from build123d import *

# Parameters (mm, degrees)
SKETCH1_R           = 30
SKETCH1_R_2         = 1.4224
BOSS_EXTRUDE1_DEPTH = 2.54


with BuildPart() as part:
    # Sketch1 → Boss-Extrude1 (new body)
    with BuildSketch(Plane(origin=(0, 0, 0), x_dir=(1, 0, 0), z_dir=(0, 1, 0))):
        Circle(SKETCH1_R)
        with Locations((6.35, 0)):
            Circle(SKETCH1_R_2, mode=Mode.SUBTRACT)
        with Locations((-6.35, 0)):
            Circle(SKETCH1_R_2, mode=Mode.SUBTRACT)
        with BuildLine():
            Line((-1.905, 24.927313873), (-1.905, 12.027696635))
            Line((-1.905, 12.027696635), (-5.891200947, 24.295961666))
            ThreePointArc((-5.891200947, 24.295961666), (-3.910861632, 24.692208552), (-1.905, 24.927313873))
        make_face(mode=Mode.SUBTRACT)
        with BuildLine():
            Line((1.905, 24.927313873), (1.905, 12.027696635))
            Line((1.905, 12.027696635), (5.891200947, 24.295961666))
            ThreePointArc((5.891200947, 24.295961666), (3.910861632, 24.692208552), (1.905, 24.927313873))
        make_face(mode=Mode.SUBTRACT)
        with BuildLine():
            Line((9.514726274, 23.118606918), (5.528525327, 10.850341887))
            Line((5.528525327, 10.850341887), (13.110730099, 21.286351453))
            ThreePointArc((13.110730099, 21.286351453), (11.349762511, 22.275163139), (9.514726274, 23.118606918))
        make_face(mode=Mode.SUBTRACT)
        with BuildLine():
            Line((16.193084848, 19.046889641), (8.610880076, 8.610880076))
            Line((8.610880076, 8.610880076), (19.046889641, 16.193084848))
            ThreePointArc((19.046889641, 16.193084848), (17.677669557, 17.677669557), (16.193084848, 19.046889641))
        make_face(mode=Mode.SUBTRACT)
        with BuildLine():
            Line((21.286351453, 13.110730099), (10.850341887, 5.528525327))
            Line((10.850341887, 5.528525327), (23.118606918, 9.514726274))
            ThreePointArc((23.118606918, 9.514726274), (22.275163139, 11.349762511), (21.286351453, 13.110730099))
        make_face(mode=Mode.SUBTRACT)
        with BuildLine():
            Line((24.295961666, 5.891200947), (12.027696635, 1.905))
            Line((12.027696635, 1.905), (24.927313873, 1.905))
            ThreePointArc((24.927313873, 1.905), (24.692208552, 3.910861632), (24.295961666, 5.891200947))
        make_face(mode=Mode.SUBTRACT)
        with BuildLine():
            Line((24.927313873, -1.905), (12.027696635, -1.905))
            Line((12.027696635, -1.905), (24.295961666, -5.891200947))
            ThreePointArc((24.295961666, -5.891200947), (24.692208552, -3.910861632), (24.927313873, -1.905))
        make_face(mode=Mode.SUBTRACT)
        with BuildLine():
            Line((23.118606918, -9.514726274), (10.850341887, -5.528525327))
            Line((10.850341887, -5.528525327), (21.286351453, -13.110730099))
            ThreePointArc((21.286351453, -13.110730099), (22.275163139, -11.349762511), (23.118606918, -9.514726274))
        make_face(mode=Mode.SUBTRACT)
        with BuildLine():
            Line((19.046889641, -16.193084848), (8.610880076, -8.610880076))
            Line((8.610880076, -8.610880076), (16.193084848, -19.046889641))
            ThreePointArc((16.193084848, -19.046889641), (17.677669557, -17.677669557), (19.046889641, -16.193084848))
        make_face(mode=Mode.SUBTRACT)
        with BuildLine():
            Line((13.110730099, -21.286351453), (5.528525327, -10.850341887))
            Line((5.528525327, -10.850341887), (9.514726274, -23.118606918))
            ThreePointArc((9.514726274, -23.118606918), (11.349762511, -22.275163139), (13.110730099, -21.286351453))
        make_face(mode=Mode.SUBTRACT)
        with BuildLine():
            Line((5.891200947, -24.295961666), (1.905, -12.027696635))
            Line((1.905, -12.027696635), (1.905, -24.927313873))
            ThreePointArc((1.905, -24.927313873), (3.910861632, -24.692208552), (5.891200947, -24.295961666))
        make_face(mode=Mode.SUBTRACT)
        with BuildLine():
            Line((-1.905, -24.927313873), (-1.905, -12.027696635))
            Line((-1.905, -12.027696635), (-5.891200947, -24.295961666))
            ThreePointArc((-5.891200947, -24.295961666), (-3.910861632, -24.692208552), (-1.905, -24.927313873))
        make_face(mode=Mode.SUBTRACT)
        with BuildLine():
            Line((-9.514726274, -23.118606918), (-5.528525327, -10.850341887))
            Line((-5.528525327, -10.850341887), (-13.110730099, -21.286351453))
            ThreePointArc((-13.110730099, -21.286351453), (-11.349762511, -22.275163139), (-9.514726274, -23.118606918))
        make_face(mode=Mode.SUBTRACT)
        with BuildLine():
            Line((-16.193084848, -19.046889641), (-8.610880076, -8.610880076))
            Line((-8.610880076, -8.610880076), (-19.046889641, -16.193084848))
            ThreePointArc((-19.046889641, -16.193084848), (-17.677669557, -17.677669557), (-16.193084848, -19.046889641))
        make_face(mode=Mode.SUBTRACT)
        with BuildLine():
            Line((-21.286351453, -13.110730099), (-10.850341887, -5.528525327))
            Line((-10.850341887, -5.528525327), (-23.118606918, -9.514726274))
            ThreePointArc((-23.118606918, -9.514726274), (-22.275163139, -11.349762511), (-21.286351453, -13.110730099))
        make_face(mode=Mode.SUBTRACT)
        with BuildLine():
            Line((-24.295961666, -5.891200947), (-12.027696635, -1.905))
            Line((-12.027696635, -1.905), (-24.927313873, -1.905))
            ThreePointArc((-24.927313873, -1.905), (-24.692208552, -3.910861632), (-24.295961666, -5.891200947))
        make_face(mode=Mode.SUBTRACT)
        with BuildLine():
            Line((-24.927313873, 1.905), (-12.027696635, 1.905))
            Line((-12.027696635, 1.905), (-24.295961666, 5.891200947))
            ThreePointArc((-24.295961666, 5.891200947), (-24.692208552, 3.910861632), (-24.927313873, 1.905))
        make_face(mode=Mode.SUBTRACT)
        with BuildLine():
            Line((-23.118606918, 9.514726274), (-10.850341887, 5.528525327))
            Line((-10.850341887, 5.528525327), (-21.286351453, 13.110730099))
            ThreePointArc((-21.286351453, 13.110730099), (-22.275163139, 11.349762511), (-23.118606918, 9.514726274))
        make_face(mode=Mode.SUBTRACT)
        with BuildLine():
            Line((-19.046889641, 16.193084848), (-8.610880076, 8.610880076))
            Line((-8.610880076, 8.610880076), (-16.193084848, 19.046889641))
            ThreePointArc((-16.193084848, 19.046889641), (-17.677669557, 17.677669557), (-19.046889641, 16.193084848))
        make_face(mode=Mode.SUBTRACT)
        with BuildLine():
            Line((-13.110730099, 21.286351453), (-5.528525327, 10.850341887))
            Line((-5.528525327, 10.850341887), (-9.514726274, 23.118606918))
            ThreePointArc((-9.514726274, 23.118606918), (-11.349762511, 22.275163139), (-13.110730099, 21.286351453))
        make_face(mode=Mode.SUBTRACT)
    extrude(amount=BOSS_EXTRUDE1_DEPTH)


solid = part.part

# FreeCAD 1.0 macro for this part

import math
import FreeCAD as App
import Part
import Sketcher
from FreeCAD import Vector
Q = App.Units.Quantity

doc = App.newDocument("Part")
params = doc.addObject("Spreadsheet::Sheet", "Params")
for row, (alias, value) in enumerate([
    ("sketch1_diameter", "60 mm"),
    ("sketch1_radius", "25 mm"),
    ("pad1_length", "2.54 mm"),
], start=1):
    params.set(f"A{row}", alias)
    params.set(f"B{row}", "=" + value)
    params.setAlias(f"B{row}", alias)

body = doc.addObject("PartDesign::Body", "Body")

sketch1 = body.newObject("Sketcher::SketchObject", "Sketch")
sketch1.AttachmentSupport = (doc.getObject("XZ_Plane"), [""])
sketch1.MapMode = "FlatFace"
sketch1.addGeometry([
    Part.Circle(Vector(0, 0, 0), Vector(0, 0, 1), 30),
    Part.LineSegment(Vector(-8.6, 8.6, 0), Vector(-16.2, 19, 0)),
    Part.ArcOfCircle(Part.Circle(Vector(0, 0, 0), Vector(0, 0, 1), 25), math.radians(130.37), math.radians(139.63)),
    Part.LineSegment(Vector(-19, 16.2, 0), Vector(-8.6, 8.6, 0)),
    Part.LineSegment(Vector(-5.5, 10.9, 0), Vector(-9.5, 23.1, 0)),
    Part.ArcOfCircle(Part.Circle(Vector(0, 0, 0), Vector(0, 0, 1), 25), math.radians(112.37), math.radians(121.63)),
    Part.LineSegment(Vector(-13.1, 21.3, 0), Vector(-5.5, 10.9, 0)),
    Part.LineSegment(Vector(-1.9, 12, 0), Vector(-1.9, 24.9, 0)),
    Part.ArcOfCircle(Part.Circle(Vector(0, 0, 0), Vector(0, 0, 1), 25), math.radians(94.37), math.radians(103.63)),
    Part.LineSegment(Vector(-5.9, 24.3, 0), Vector(-1.9, 12, 0)),
    Part.LineSegment(Vector(-10.9, 5.5, 0), Vector(-21.3, 13.1, 0)),
    Part.ArcOfCircle(Part.Circle(Vector(0, 0, 0), Vector(0, 0, 1), 25), math.radians(148.37), math.radians(157.63)),
    Part.LineSegment(Vector(-23.1, 9.5, 0), Vector(-10.9, 5.5, 0)),
    Part.LineSegment(Vector(-12, 1.9, 0), Vector(-24.3, 5.9, 0)),
    Part.ArcOfCircle(Part.Circle(Vector(0, 0, 0), Vector(0, 0, 1), 25), math.radians(166.37), math.radians(175.63)),
    Part.LineSegment(Vector(-24.9, 1.9, 0), Vector(-12, 1.9, 0)),
    Part.LineSegment(Vector(1.9, 12, 0), Vector(5.9, 24.3, 0)),
    Part.ArcOfCircle(Part.Circle(Vector(0, 0, 0), Vector(0, 0, 1), 25), math.radians(76.37), math.radians(85.63)),
    Part.LineSegment(Vector(1.9, 24.9, 0), Vector(1.9, 12, 0)),
    Part.LineSegment(Vector(5.5, 10.9, 0), Vector(13.1, 21.3, 0)),
    Part.ArcOfCircle(Part.Circle(Vector(0, 0, 0), Vector(0, 0, 1), 25), math.radians(58.37), math.radians(67.63)),
    Part.LineSegment(Vector(9.5, 23.1, 0), Vector(5.5, 10.9, 0)),
    Part.LineSegment(Vector(8.6, 8.6, 0), Vector(19, 16.2, 0)),
    Part.ArcOfCircle(Part.Circle(Vector(0, 0, 0), Vector(0, 0, 1), 25), math.radians(40.37), math.radians(49.63)),
    Part.LineSegment(Vector(16.2, 19, 0), Vector(8.6, 8.6, 0)),
    Part.LineSegment(Vector(10.9, 5.5, 0), Vector(23.1, 9.5, 0)),
    Part.ArcOfCircle(Part.Circle(Vector(0, 0, 0), Vector(0, 0, 1), 25), math.radians(22.37), math.radians(31.63)),
    Part.LineSegment(Vector(21.3, 13.1, 0), Vector(10.9, 5.5, 0)),
    Part.LineSegment(Vector(12, 1.9, 0), Vector(24.9, 1.9, 0)),
    Part.ArcOfCircle(Part.Circle(Vector(0, 0, 0), Vector(0, 0, 1), 25), math.radians(4.37), math.radians(13.63)),
    Part.LineSegment(Vector(24.3, 5.9, 0), Vector(12, 1.9, 0)),
    Part.LineSegment(Vector(-12, -1.9, 0), Vector(-24.9, -1.9, 0)),
    Part.ArcOfCircle(Part.Circle(Vector(0, 0, 0), Vector(0, 0, 1), 25), math.radians(-175.63), math.radians(-166.37)),
    Part.LineSegment(Vector(-24.3, -5.9, 0), Vector(-12, -1.9, 0)),
    Part.LineSegment(Vector(-10.9, -5.5, 0), Vector(-23.1, -9.5, 0)),
    Part.ArcOfCircle(Part.Circle(Vector(0, 0, 0), Vector(0, 0, 1), 25), math.radians(-157.63), math.radians(-148.37)),
    Part.LineSegment(Vector(-21.3, -13.1, 0), Vector(-10.9, -5.5, 0)),
    Part.Circle(Vector(-6.3, 0, 0), Vector(0, 0, 1), 1.4),
    Part.LineSegment(Vector(-8.6, -8.6, 0), Vector(-19, -16.2, 0)),
    Part.ArcOfCircle(Part.Circle(Vector(0, 0, 0), Vector(0, 0, 1), 25), math.radians(-139.63), math.radians(-130.37)),
    Part.LineSegment(Vector(-16.2, -19, 0), Vector(-8.6, -8.6, 0)),
    Part.LineSegment(Vector(-5.5, -10.9, 0), Vector(-13.1, -21.3, 0)),
    Part.ArcOfCircle(Part.Circle(Vector(0, 0, 0), Vector(0, 0, 1), 25), math.radians(-121.63), math.radians(-112.37)),
    Part.LineSegment(Vector(-9.5, -23.1, 0), Vector(-5.5, -10.9, 0)),
    Part.ArcOfCircle(Part.Circle(Vector(0, 0, 0), Vector(0, 0, 1), 25), math.radians(-103.63), math.radians(-94.37)),
    Part.LineSegment(Vector(-1.9, -24.9, 0), Vector(-1.9, -12, 0)),
    Part.LineSegment(Vector(-1.9, -12, 0), Vector(-5.9, -24.3, 0)),
    Part.Circle(Vector(6.3, 0, 0), Vector(0, 0, 1), 1.4),
    Part.LineSegment(Vector(12, -1.9, 0), Vector(24.3, -5.9, 0)),
    Part.ArcOfCircle(Part.Circle(Vector(0, 0, 0), Vector(0, 0, 1), 25), math.radians(-13.63), math.radians(-4.37)),
    Part.LineSegment(Vector(24.9, -1.9, 0), Vector(12, -1.9, 0)),
    Part.LineSegment(Vector(10.9, -5.5, 0), Vector(21.3, -13.1, 0)),
    Part.ArcOfCircle(Part.Circle(Vector(0, 0, 0), Vector(0, 0, 1), 25), math.radians(-31.63), math.radians(-22.37)),
    Part.LineSegment(Vector(23.1, -9.5, 0), Vector(10.9, -5.5, 0)),
    Part.LineSegment(Vector(1.9, -12, 0), Vector(1.9, -24.9, 0)),
    Part.ArcOfCircle(Part.Circle(Vector(0, 0, 0), Vector(0, 0, 1), 25), math.radians(-85.63), math.radians(-76.37)),
    Part.LineSegment(Vector(5.9, -24.3, 0), Vector(1.9, -12, 0)),
    Part.LineSegment(Vector(5.5, -10.9, 0), Vector(9.5, -23.1, 0)),
    Part.ArcOfCircle(Part.Circle(Vector(0, 0, 0), Vector(0, 0, 1), 25), math.radians(-67.63), math.radians(-58.37)),
    Part.LineSegment(Vector(13.1, -21.3, 0), Vector(5.5, -10.9, 0)),
    Part.LineSegment(Vector(8.6, -8.6, 0), Vector(16.2, -19, 0)),
    Part.ArcOfCircle(Part.Circle(Vector(0, 0, 0), Vector(0, 0, 1), 25), math.radians(-49.63), math.radians(-40.37)),
    Part.LineSegment(Vector(19, -16.2, 0), Vector(8.6, -8.6, 0)),
], False)
sketch1.addConstraint([
    Sketcher.Constraint("Coincident", 1, 2, 2, 1),
    Sketcher.Constraint("Coincident", 2, 2, 3, 1),
    Sketcher.Constraint("Coincident", 3, 2, 1, 1),
    Sketcher.Constraint("Coincident", 4, 2, 5, 1),
    Sketcher.Constraint("Coincident", 5, 2, 6, 1),
    Sketcher.Constraint("Coincident", 6, 2, 4, 1),
    Sketcher.Constraint("Coincident", 7, 2, 8, 1),
    Sketcher.Constraint("Coincident", 8, 2, 9, 1),
    Sketcher.Constraint("Coincident", 9, 2, 7, 1),
    Sketcher.Constraint("Coincident", 10, 2, 11, 1),
    Sketcher.Constraint("Coincident", 11, 2, 12, 1),
    Sketcher.Constraint("Coincident", 12, 2, 10, 1),
    Sketcher.Constraint("Coincident", 13, 2, 14, 1),
    Sketcher.Constraint("Coincident", 14, 2, 15, 1),
    Sketcher.Constraint("Coincident", 15, 2, 13, 1),
    Sketcher.Constraint("Coincident", 16, 2, 17, 1),
    Sketcher.Constraint("Coincident", 17, 2, 18, 1),
    Sketcher.Constraint("Coincident", 18, 2, 16, 1),
    Sketcher.Constraint("Coincident", 19, 2, 20, 1),
    Sketcher.Constraint("Coincident", 20, 2, 21, 1),
    Sketcher.Constraint("Coincident", 21, 2, 19, 1),
    Sketcher.Constraint("Coincident", 22, 2, 23, 1),
    Sketcher.Constraint("Coincident", 23, 2, 24, 1),
    Sketcher.Constraint("Coincident", 24, 2, 22, 1),
    Sketcher.Constraint("Coincident", 25, 2, 26, 1),
    Sketcher.Constraint("Coincident", 26, 2, 27, 1),
    Sketcher.Constraint("Coincident", 27, 2, 25, 1),
    Sketcher.Constraint("Coincident", 28, 2, 29, 1),
    Sketcher.Constraint("Coincident", 29, 2, 30, 1),
    Sketcher.Constraint("Coincident", 30, 2, 28, 1),
    Sketcher.Constraint("Coincident", 31, 2, 32, 1),
    Sketcher.Constraint("Coincident", 32, 2, 33, 1),
    Sketcher.Constraint("Coincident", 33, 2, 31, 1),
    Sketcher.Constraint("Coincident", 34, 2, 35, 1),
    Sketcher.Constraint("Coincident", 35, 2, 36, 1),
    Sketcher.Constraint("Coincident", 36, 2, 34, 1),
    Sketcher.Constraint("Coincident", 38, 2, 39, 1),
    Sketcher.Constraint("Coincident", 39, 2, 40, 1),
    Sketcher.Constraint("Coincident", 40, 2, 38, 1),
    Sketcher.Constraint("Coincident", 41, 2, 42, 1),
    Sketcher.Constraint("Coincident", 42, 2, 43, 1),
    Sketcher.Constraint("Coincident", 43, 2, 41, 1),
    Sketcher.Constraint("Coincident", 44, 2, 45, 1),
    Sketcher.Constraint("Coincident", 45, 2, 46, 1),
    Sketcher.Constraint("Coincident", 46, 2, 44, 1),
    Sketcher.Constraint("Coincident", 48, 2, 49, 1),
    Sketcher.Constraint("Coincident", 49, 2, 50, 1),
    Sketcher.Constraint("Coincident", 50, 2, 48, 1),
    Sketcher.Constraint("Coincident", 51, 2, 52, 1),
    Sketcher.Constraint("Coincident", 52, 2, 53, 1),
    Sketcher.Constraint("Coincident", 53, 2, 51, 1),
    Sketcher.Constraint("Coincident", 54, 2, 55, 1),
    Sketcher.Constraint("Coincident", 55, 2, 56, 1),
    Sketcher.Constraint("Coincident", 56, 2, 54, 1),
    Sketcher.Constraint("Coincident", 57, 2, 58, 1),
    Sketcher.Constraint("Coincident", 58, 2, 59, 1),
    Sketcher.Constraint("Coincident", 59, 2, 57, 1),
    Sketcher.Constraint("Coincident", 60, 2, 61, 1),
    Sketcher.Constraint("Coincident", 61, 2, 62, 1),
    Sketcher.Constraint("Coincident", 62, 2, 60, 1),
    Sketcher.Constraint("Vertical", 7),
    Sketcher.Constraint("Horizontal", 15),
    Sketcher.Constraint("Vertical", 18),
    Sketcher.Constraint("Horizontal", 28),
    Sketcher.Constraint("Horizontal", 31),
    Sketcher.Constraint("Vertical", 45),
    Sketcher.Constraint("Horizontal", 50),
    Sketcher.Constraint("Vertical", 54),
    Sketcher.Constraint("Coincident", 0, 3, -1, 1),
    Sketcher.Constraint("Coincident", 2, 3, -1, 1),
    Sketcher.Constraint("Coincident", 5, 3, -1, 1),
    Sketcher.Constraint("Coincident", 8, 3, -1, 1),
    Sketcher.Constraint("Coincident", 11, 3, -1, 1),
    Sketcher.Constraint("Coincident", 14, 3, -1, 1),
    Sketcher.Constraint("Coincident", 17, 3, -1, 1),
    Sketcher.Constraint("Coincident", 20, 3, -1, 1),
    Sketcher.Constraint("Coincident", 23, 3, -1, 1),
    Sketcher.Constraint("Coincident", 26, 3, -1, 1),
    Sketcher.Constraint("Coincident", 29, 3, -1, 1),
    Sketcher.Constraint("Coincident", 32, 3, -1, 1),
    Sketcher.Constraint("Coincident", 35, 3, -1, 1),
    Sketcher.Constraint("Coincident", 39, 3, -1, 1),
    Sketcher.Constraint("Coincident", 42, 3, -1, 1),
    Sketcher.Constraint("Coincident", 44, 3, -1, 1),
    Sketcher.Constraint("Coincident", 49, 3, -1, 1),
    Sketcher.Constraint("Coincident", 52, 3, -1, 1),
    Sketcher.Constraint("Coincident", 55, 3, -1, 1),
    Sketcher.Constraint("Coincident", 58, 3, -1, 1),
    Sketcher.Constraint("Coincident", 61, 3, -1, 1),
    Sketcher.Constraint("Equal", 2, 5),
    Sketcher.Constraint("Equal", 5, 8),
    Sketcher.Constraint("Equal", 8, 11),
    Sketcher.Constraint("Equal", 11, 14),
    Sketcher.Constraint("Equal", 14, 17),
    Sketcher.Constraint("Equal", 17, 20),
    Sketcher.Constraint("Equal", 20, 23),
    Sketcher.Constraint("Equal", 23, 26),
    Sketcher.Constraint("Equal", 26, 29),
    Sketcher.Constraint("Equal", 29, 32),
    Sketcher.Constraint("Equal", 32, 35),
    Sketcher.Constraint("Equal", 35, 39),
    Sketcher.Constraint("Equal", 39, 42),
    Sketcher.Constraint("Equal", 42, 44),
    Sketcher.Constraint("Equal", 37, 47),
    Sketcher.Constraint("Equal", 44, 49),
    Sketcher.Constraint("Equal", 49, 52),
    Sketcher.Constraint("Equal", 52, 55),
    Sketcher.Constraint("Equal", 55, 58),
    Sketcher.Constraint("Equal", 58, 61),
    Sketcher.Constraint("Symmetric", 37, 3, 47, 3, -1, 1),
    Sketcher.Constraint("Symmetric", 30, 2, 33, 2, -1, 1),
    Sketcher.Constraint("Symmetric", 27, 2, 36, 2, -1, 1),
    Sketcher.Constraint("Symmetric", 24, 2, 40, 2, -1, 1),
    Sketcher.Constraint("Symmetric", 21, 2, 43, 2, -1, 1),
    Sketcher.Constraint("Symmetric", 18, 2, 45, 2, -1, 1),
    Sketcher.Constraint("Symmetric", 15, 2, 50, 2, -1, 1),
    Sketcher.Constraint("Symmetric", 12, 2, 53, 2, -1, 1),
    Sketcher.Constraint("Symmetric", 9, 2, 56, 2, -1, 1),
    Sketcher.Constraint("Symmetric", 6, 2, 59, 2, -1, 1),
    Sketcher.Constraint("Symmetric", 3, 2, 62, 2, -1, 1),
    Sketcher.Constraint("Symmetric", 9, 2, 18, 2, -2),
    Sketcher.Constraint("Symmetric", 6, 2, 21, 2, -2),
    Sketcher.Constraint("Symmetric", 3, 2, 24, 2, -2),
    Sketcher.Constraint("Symmetric", 12, 2, 27, 2, -2),
    Sketcher.Constraint("Symmetric", 15, 2, 30, 2, -2),
    Sketcher.Constraint("PointOnObject", 37, 3, -1),
    Sketcher.Constraint("Parallel", 1, 6),
    Sketcher.Constraint("Parallel", 4, 9),
    Sketcher.Constraint("Parallel", 3, 10),
    Sketcher.Constraint("Parallel", 12, 13),
    Sketcher.Constraint("Perpendicular", 13, 16),
    Sketcher.Constraint("Perpendicular", 10, 19),
    Sketcher.Constraint("Parallel", 16, 21),
    Sketcher.Constraint("Perpendicular", 6, 22),
    Sketcher.Constraint("Parallel", 19, 24),
    Sketcher.Constraint("Perpendicular", 9, 25),
    Sketcher.Constraint("Parallel", 22, 27),
    Sketcher.Constraint("Parallel", 25, 30),
    Sketcher.Constraint("Parallel", 30, 33),
    Sketcher.Constraint("Parallel", 33, 34),
    Sketcher.Constraint("Parallel", 27, 36),
    Sketcher.Constraint("Parallel", 36, 38),
    Sketcher.Constraint("Parallel", 24, 40),
    Sketcher.Constraint("Parallel", 40, 41),
    Sketcher.Constraint("Parallel", 21, 43),
    Sketcher.Constraint("Parallel", 43, 46),
    Sketcher.Constraint("Perpendicular", 46, 48),
    Sketcher.Constraint("Perpendicular", 41, 51),
    Sketcher.Constraint("Parallel", 48, 53),
    Sketcher.Constraint("Perpendicular", 34, 56),
    Sketcher.Constraint("Parallel", 56, 57),
    Sketcher.Constraint("Perpendicular", 38, 59),
    Sketcher.Constraint("Parallel", 59, 60),
    Sketcher.Constraint("Parallel", 51, 62),
    Sketcher.Constraint("Horizontal", 8, 2, 16, 2),
    Sketcher.Constraint("Horizontal", 5, 2, 19, 2),
    Sketcher.Constraint("Equal", 50, 7),
    Sketcher.Constraint("Equal", 1, 3),
    Sketcher.Constraint("Equal", 3, 4),
    Sketcher.Constraint("Equal", 4, 6),
    Sketcher.Constraint("Equal", 6, 9),
    Sketcher.Constraint("Equal", 9, 10),
    Sketcher.Constraint("Equal", 10, 12),
    Sketcher.Constraint("Equal", 12, 13),
    Sketcher.Constraint("Diameter", 0, Q("60 mm")),
    Sketcher.Constraint("Radius", 2, Q("25 mm")),
    Sketcher.Constraint("Angle", 1, Q("126 deg")),
    Sketcher.Constraint("Angle", 4, Q("108 deg")),
    Sketcher.Constraint("Diameter", 37, Q("2.8448 mm")),
    Sketcher.Constraint("DistanceX", 37, 3, -1, 1, Q("6.35 mm")),
    Sketcher.Constraint("DistanceX", 7, 2, -1, 1, Q("1.905 mm")),
    Sketcher.Constraint("DistanceY", -1, 1, 13, 2, Q("5.891201 mm")),
])
sketch1.setExpression("Constraints[164]", "Params.sketch1_diameter")
sketch1.setExpression("Constraints[165]", "Params.sketch1_radius")
pad1 = body.newObject("PartDesign::Pad", "Pad")
pad1.Profile = sketch1
pad1.setExpression("Length", "Params.pad1_length")
pad1.Reversed = True

doc.recompute()
